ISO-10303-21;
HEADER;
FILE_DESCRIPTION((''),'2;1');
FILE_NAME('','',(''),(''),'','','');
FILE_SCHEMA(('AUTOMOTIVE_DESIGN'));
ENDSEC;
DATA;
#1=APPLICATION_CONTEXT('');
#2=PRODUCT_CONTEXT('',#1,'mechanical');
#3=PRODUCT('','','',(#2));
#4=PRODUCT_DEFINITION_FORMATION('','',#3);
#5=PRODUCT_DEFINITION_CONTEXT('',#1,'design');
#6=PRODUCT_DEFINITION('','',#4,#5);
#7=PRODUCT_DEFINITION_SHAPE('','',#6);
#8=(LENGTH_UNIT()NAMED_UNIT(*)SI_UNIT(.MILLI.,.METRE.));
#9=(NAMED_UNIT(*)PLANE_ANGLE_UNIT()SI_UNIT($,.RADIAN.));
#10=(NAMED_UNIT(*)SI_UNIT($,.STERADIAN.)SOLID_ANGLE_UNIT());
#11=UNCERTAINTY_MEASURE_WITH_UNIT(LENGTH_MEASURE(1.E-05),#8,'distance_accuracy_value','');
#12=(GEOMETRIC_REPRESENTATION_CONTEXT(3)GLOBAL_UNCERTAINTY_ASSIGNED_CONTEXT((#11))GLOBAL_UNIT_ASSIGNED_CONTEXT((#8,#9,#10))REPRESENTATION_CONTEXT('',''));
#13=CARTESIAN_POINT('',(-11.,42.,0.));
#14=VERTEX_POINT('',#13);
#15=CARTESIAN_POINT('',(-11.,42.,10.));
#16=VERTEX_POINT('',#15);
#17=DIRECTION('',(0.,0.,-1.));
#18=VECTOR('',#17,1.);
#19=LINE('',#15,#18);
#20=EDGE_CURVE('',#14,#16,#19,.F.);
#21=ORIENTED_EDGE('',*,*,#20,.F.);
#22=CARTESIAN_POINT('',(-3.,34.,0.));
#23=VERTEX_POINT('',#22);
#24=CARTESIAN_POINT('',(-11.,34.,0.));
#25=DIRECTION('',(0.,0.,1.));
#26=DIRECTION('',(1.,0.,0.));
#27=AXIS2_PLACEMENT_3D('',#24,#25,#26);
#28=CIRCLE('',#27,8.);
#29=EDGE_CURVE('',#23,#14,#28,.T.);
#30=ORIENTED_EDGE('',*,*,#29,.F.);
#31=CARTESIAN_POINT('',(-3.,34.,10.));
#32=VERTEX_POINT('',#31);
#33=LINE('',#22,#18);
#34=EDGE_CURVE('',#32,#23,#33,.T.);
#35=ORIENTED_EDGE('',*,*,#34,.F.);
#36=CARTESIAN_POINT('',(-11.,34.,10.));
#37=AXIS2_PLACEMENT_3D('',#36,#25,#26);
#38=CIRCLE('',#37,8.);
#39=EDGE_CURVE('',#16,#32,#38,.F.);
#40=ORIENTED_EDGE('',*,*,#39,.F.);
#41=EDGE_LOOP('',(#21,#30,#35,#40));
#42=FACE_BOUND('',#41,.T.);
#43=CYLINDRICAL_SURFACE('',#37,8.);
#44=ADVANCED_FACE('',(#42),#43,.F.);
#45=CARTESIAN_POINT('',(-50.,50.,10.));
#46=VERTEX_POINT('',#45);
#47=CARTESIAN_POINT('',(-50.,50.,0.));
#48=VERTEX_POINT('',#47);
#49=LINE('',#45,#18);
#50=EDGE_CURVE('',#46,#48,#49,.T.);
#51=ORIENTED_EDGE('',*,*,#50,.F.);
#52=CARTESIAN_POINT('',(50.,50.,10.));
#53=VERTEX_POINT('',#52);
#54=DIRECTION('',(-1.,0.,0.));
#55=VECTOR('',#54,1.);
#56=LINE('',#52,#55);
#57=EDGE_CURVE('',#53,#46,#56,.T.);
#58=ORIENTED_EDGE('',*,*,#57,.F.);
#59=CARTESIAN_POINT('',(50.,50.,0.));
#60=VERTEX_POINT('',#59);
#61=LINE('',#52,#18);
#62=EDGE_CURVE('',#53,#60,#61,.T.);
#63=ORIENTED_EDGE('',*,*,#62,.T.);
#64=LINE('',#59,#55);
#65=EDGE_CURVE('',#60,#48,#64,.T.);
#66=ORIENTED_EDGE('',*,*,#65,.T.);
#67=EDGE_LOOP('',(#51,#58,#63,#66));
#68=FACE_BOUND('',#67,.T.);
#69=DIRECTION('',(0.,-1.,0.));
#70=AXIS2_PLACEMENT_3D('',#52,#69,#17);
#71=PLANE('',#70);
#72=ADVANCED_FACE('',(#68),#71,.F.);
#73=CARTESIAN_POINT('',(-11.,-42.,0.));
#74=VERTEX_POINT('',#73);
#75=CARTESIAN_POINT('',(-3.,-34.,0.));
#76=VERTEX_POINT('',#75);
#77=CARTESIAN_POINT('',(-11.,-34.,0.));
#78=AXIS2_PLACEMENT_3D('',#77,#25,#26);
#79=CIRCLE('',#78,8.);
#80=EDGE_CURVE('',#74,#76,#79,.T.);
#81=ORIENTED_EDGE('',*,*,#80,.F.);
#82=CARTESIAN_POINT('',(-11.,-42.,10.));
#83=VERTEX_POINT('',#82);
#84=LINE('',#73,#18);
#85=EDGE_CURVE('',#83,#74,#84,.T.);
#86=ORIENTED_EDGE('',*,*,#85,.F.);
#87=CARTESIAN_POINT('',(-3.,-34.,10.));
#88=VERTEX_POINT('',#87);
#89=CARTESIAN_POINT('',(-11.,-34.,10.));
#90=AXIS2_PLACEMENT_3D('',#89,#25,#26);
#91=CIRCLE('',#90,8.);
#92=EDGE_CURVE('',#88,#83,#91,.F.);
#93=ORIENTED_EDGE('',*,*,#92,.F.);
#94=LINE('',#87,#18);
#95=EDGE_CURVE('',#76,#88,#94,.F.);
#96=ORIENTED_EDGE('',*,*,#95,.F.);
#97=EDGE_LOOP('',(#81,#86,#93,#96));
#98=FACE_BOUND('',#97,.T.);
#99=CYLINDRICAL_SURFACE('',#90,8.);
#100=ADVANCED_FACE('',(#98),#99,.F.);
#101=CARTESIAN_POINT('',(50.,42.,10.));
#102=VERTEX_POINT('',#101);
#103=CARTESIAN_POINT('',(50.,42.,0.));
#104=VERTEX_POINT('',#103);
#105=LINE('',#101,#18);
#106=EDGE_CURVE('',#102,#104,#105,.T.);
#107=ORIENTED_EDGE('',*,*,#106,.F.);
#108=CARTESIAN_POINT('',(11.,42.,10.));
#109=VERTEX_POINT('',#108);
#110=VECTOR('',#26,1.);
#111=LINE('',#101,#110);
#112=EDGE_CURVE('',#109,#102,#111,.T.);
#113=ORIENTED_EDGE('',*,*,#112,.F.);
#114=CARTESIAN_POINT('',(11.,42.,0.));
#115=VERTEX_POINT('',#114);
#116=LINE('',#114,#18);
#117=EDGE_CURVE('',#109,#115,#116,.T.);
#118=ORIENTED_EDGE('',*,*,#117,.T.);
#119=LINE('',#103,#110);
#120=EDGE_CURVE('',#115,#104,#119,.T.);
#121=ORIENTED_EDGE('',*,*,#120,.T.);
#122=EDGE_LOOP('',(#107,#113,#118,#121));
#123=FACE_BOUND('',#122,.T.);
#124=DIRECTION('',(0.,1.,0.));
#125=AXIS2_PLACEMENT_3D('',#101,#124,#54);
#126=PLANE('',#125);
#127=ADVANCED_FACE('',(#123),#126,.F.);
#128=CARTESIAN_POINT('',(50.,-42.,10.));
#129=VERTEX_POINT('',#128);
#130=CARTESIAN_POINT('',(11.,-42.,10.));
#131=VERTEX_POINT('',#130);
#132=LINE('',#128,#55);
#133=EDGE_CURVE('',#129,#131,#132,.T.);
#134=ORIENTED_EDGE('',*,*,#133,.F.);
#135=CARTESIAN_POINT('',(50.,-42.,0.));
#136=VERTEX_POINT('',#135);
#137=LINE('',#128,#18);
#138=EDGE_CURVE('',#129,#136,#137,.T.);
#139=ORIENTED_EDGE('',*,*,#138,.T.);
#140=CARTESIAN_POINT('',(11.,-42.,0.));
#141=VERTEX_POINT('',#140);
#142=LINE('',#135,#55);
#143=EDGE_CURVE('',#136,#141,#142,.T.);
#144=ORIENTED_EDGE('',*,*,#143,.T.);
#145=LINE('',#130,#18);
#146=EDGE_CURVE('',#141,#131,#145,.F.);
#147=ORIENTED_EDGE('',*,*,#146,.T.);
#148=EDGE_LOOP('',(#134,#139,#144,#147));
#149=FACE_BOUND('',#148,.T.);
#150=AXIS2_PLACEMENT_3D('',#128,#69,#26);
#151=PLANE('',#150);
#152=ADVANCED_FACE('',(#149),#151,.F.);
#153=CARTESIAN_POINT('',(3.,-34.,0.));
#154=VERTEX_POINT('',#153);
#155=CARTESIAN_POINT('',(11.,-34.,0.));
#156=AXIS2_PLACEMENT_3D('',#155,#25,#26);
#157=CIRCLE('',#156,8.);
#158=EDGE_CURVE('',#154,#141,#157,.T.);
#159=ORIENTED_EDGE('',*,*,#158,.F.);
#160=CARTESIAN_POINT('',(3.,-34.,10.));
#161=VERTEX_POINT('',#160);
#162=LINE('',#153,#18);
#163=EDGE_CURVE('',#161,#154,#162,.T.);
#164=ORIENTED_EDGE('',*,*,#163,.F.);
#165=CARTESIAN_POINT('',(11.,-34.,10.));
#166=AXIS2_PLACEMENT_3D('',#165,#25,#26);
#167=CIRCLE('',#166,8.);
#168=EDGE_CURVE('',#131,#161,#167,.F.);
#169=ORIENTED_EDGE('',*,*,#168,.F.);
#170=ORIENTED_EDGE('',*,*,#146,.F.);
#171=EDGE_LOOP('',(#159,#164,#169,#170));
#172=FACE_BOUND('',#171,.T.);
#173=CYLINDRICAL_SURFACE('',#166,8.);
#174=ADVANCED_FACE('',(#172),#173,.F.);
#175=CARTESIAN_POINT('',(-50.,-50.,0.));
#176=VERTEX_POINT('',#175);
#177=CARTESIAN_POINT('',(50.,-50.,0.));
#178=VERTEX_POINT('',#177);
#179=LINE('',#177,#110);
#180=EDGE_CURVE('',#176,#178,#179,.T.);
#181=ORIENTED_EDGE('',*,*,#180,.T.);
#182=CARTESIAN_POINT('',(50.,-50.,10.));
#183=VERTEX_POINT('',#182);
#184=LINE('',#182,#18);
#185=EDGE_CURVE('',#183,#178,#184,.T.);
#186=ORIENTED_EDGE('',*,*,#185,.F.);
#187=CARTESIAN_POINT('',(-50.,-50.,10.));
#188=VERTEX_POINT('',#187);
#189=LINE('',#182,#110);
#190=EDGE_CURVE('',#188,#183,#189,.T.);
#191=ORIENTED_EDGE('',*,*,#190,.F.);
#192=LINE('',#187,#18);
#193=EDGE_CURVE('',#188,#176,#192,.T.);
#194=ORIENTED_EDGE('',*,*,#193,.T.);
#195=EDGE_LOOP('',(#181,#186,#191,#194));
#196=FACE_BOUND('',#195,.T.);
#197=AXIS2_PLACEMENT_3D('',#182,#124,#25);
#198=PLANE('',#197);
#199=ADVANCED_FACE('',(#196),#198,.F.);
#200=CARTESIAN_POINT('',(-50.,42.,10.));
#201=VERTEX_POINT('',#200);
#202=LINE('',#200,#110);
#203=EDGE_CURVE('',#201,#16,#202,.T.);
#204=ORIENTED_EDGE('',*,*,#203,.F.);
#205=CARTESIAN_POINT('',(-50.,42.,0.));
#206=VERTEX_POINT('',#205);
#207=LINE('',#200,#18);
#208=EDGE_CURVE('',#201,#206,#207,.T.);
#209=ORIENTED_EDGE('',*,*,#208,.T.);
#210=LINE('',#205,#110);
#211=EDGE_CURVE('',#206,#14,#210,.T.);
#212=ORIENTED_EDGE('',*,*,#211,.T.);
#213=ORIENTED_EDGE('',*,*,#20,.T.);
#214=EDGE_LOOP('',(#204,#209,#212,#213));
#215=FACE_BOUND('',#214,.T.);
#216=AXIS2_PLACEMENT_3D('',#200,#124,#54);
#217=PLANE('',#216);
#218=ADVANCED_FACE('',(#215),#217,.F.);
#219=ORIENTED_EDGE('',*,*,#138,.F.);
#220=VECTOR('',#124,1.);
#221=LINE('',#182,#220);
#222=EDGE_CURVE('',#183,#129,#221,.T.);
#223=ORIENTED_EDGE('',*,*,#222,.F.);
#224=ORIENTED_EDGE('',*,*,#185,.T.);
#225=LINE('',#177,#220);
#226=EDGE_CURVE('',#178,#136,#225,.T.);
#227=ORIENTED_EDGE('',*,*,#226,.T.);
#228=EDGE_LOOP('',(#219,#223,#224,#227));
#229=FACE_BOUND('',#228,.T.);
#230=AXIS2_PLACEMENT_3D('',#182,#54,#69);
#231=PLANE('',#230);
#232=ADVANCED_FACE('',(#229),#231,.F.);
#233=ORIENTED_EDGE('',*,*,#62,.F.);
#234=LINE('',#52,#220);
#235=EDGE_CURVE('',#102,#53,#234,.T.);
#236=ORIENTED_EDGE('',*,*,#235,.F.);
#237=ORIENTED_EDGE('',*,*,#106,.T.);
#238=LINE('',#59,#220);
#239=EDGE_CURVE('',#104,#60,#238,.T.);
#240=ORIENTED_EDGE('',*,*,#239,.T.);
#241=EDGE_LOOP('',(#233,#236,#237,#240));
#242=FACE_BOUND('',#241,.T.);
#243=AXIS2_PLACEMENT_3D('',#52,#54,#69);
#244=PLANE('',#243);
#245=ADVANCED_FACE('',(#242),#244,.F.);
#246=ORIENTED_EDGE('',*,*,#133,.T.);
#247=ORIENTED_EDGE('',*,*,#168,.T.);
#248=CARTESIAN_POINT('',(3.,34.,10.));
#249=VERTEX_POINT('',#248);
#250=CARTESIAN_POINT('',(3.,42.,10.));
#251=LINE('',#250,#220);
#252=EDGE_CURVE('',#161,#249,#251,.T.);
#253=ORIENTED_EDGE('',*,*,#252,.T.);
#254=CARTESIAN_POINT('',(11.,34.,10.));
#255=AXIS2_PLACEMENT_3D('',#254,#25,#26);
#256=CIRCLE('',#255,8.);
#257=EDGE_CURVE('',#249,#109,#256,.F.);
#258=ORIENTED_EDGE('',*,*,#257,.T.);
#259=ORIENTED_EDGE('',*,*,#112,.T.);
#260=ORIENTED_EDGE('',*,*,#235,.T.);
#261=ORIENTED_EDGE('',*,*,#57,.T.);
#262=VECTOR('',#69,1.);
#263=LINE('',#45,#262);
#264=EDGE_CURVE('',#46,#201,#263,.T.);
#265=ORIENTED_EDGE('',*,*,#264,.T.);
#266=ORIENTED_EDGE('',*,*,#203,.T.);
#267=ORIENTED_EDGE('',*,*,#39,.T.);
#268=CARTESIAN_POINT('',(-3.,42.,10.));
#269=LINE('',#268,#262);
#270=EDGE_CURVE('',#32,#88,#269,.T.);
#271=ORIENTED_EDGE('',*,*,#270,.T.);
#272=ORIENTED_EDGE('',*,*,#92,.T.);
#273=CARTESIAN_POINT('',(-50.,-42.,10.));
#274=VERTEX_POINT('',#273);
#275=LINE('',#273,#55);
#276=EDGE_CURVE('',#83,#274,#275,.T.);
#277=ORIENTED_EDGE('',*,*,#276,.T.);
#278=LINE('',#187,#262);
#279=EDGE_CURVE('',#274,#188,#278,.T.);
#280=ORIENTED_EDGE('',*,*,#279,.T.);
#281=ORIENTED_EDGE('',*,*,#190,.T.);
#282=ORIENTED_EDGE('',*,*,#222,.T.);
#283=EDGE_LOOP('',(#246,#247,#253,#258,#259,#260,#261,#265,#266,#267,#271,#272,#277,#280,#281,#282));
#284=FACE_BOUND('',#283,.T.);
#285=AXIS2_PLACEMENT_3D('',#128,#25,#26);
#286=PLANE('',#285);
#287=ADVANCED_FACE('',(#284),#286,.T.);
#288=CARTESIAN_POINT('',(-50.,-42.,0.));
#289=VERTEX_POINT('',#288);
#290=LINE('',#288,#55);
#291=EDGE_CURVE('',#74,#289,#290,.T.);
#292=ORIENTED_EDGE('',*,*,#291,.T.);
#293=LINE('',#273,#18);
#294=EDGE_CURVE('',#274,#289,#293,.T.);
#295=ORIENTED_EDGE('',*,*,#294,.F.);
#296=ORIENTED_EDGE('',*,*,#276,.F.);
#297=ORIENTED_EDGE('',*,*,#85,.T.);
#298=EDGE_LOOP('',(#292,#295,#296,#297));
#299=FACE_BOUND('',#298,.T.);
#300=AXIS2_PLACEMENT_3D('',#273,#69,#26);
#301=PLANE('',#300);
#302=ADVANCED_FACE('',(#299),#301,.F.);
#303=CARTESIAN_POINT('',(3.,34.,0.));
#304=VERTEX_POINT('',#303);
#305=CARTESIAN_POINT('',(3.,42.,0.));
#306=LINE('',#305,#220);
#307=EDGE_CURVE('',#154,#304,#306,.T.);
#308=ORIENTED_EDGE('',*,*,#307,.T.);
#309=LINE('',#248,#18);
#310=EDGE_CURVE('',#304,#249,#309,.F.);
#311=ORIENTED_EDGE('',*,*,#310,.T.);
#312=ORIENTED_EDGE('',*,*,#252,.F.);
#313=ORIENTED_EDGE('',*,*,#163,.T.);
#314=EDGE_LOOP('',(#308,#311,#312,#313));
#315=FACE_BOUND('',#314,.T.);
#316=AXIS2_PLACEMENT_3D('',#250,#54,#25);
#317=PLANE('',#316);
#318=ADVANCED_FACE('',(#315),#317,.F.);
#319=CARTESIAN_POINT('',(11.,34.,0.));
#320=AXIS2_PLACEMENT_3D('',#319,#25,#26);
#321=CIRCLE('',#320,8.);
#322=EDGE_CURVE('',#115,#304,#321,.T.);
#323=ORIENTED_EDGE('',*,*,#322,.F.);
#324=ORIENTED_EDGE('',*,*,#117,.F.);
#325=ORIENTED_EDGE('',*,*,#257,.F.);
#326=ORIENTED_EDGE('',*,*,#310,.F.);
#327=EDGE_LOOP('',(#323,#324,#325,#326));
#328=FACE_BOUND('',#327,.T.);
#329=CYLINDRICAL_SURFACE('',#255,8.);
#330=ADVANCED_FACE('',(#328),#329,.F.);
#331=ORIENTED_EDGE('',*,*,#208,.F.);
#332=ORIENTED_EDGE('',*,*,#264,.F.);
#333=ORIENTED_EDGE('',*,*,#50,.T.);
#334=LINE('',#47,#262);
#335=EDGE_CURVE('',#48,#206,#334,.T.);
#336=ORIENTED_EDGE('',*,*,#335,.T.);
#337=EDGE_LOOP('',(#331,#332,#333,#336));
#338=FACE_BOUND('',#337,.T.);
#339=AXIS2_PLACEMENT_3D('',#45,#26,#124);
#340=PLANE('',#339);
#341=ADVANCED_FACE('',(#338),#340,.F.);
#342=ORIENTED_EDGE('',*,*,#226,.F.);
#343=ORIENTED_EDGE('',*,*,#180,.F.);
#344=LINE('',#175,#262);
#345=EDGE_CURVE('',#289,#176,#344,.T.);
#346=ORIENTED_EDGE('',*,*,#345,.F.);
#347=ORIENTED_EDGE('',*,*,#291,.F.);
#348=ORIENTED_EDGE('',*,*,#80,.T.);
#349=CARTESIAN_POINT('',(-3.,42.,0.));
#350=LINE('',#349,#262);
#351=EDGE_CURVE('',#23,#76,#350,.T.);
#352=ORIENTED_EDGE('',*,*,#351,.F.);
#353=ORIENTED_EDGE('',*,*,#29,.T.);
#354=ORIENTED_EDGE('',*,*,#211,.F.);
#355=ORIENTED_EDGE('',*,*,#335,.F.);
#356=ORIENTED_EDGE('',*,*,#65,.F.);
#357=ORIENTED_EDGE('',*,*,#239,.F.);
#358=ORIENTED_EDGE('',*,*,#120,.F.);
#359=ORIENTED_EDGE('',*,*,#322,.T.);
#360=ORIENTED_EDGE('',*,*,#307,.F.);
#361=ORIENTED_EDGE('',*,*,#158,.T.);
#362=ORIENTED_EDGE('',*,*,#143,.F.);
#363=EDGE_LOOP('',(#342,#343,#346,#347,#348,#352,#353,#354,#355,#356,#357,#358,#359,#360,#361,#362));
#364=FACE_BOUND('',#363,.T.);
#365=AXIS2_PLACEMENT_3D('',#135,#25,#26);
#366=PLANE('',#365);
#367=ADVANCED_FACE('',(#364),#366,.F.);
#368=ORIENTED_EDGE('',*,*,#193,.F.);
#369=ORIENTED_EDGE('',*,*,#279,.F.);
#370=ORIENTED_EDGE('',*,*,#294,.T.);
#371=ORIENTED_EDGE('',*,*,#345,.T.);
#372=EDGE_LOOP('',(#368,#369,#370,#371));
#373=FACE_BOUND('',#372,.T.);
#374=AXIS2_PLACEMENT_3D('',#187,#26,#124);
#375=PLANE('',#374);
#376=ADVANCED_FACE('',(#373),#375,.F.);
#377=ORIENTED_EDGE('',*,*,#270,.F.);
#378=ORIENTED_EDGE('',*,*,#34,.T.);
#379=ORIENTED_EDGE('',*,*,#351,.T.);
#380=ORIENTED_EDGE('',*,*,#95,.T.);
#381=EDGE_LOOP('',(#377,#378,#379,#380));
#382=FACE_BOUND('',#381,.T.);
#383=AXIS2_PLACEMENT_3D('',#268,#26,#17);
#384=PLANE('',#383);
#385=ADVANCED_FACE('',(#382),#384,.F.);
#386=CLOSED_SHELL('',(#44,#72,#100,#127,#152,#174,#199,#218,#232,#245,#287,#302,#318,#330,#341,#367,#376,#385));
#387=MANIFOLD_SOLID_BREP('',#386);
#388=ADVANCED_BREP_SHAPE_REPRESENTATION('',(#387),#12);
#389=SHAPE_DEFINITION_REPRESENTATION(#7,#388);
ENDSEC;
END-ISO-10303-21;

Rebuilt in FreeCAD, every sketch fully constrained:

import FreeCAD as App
import Part
import Sketcher
Q = App.Units.Quantity


def edges_at(feature, points):
    """Names of the edges that pass closest to the given points."""
    edges = feature.Shape.Edges
    near = lambda p: min(range(len(edges)), key=lambda i: edges[i].distToShape(Part.Vertex(*p))[0])
    return sorted({f"Edge{near(p) + 1}" for p in points})

doc = App.newDocument("Part")
body = doc.addObject("PartDesign::Body", "Body")

sketch1 = body.newObject("Sketcher::SketchObject", "Sketch")
sketch1.AttachmentSupport = (doc.getObject("XY_Plane"), [""])
sketch1.MapMode = "FlatFace"
sketch1.addGeometry(Part.LineSegment(App.Vector(50, 50, 0), App.Vector(-50, 50, 0)), False)
sketch1.addGeometry(Part.LineSegment(App.Vector(-50, 50, 0), App.Vector(-50, 42, 0)), False)
sketch1.addGeometry(Part.LineSegment(App.Vector(-50, 42, 0), App.Vector(-3, 42, 0)), False)
sketch1.addGeometry(Part.LineSegment(App.Vector(-3, 42, 0), App.Vector(-3, -42, 0)), False)
sketch1.addGeometry(Part.LineSegment(App.Vector(-3, -42, 0), App.Vector(-50, -42, 0)), False)
sketch1.addGeometry(Part.LineSegment(App.Vector(-50, -42, 0), App.Vector(-50, -50, 0)), False)
sketch1.addGeometry(Part.LineSegment(App.Vector(-50, -50, 0), App.Vector(50, -50, 0)), False)
sketch1.addGeometry(Part.LineSegment(App.Vector(50, -50, 0), App.Vector(50, -42, 0)), False)
sketch1.addGeometry(Part.LineSegment(App.Vector(50, -42, 0), App.Vector(3, -42, 0)), False)
sketch1.addGeometry(Part.LineSegment(App.Vector(3, -42, 0), App.Vector(3, 42, 0)), False)
sketch1.addGeometry(Part.LineSegment(App.Vector(3, 42, 0), App.Vector(50, 42, 0)), False)
sketch1.addGeometry(Part.LineSegment(App.Vector(50, 42, 0), App.Vector(50, 50, 0)), False)
sketch1.addConstraint(Sketcher.Constraint("Coincident", 0, 2, 1, 1))
sketch1.addConstraint(Sketcher.Constraint("Coincident", 1, 2, 2, 1))
sketch1.addConstraint(Sketcher.Constraint("Coincident", 2, 2, 3, 1))
sketch1.addConstraint(Sketcher.Constraint("Coincident", 3, 2, 4, 1))
sketch1.addConstraint(Sketcher.Constraint("Coincident", 4, 2, 5, 1))
sketch1.addConstraint(Sketcher.Constraint("Coincident", 5, 2, 6, 1))
sketch1.addConstraint(Sketcher.Constraint("Coincident", 6, 2, 7, 1))
sketch1.addConstraint(Sketcher.Constraint("Coincident", 7, 2, 8, 1))
sketch1.addConstraint(Sketcher.Constraint("Coincident", 8, 2, 9, 1))
sketch1.addConstraint(Sketcher.Constraint("Coincident", 9, 2, 10, 1))
sketch1.addConstraint(Sketcher.Constraint("Coincident", 10, 2, 11, 1))
sketch1.addConstraint(Sketcher.Constraint("Coincident", 11, 2, 0, 1))
sketch1.addConstraint(Sketcher.Constraint("Horizontal", 0))
sketch1.addConstraint(Sketcher.Constraint("Vertical", 1))
sketch1.addConstraint(Sketcher.Constraint("Horizontal", 2))
sketch1.addConstraint(Sketcher.Constraint("Vertical", 3))
sketch1.addConstraint(Sketcher.Constraint("Horizontal", 4))
sketch1.addConstraint(Sketcher.Constraint("Vertical", 5))
sketch1.addConstraint(Sketcher.Constraint("Horizontal", 6))
sketch1.addConstraint(Sketcher.Constraint("Vertical", 7))
sketch1.addConstraint(Sketcher.Constraint("Horizontal", 8))
sketch1.addConstraint(Sketcher.Constraint("Vertical", 9))
sketch1.addConstraint(Sketcher.Constraint("Horizontal", 10))
sketch1.addConstraint(Sketcher.Constraint("Vertical", 11))
sketch1.addConstraint(Sketcher.Constraint("Symmetric", 0, 2, 6, 2, -1, 1))
sketch1.addConstraint(Sketcher.Constraint("Symmetric", 2, 2, 8, 2, -1, 1))
sketch1.addConstraint(Sketcher.Constraint("Symmetric", 4, 2, 10, 2, -1, 1))
sketch1.addConstraint(Sketcher.Constraint("Symmetric", 4, 2, 7, 2, -2))
sketch1.addConstraint(Sketcher.Constraint("DistanceX", 0, 2, 0, 1, Q("100 mm")))
sketch1.addConstraint(Sketcher.Constraint("DistanceX", 2, 1, 2, 2, Q("47 mm")))
sketch1.addConstraint(Sketcher.Constraint("DistanceY", 1, 2, 1, 1, Q("8 mm")))
sketch1.addConstraint(Sketcher.Constraint("DistanceY", 3, 2, 3, 1, Q("84 mm")))
pad1 = body.newObject("PartDesign::Pad", "Pad")
pad1.Profile = sketch1
pad1.Length = 10
doc.recompute()

fillet = body.newObject("PartDesign::Fillet", "Fillet")
fillet.Base = (pad1, edges_at(pad1, [
    (-3, -42, 5),
    (-3, 42, 5),
    (3, 42, 5),
    (3, -42, 5),
]))
fillet.Radius = 8

doc.recompute()
